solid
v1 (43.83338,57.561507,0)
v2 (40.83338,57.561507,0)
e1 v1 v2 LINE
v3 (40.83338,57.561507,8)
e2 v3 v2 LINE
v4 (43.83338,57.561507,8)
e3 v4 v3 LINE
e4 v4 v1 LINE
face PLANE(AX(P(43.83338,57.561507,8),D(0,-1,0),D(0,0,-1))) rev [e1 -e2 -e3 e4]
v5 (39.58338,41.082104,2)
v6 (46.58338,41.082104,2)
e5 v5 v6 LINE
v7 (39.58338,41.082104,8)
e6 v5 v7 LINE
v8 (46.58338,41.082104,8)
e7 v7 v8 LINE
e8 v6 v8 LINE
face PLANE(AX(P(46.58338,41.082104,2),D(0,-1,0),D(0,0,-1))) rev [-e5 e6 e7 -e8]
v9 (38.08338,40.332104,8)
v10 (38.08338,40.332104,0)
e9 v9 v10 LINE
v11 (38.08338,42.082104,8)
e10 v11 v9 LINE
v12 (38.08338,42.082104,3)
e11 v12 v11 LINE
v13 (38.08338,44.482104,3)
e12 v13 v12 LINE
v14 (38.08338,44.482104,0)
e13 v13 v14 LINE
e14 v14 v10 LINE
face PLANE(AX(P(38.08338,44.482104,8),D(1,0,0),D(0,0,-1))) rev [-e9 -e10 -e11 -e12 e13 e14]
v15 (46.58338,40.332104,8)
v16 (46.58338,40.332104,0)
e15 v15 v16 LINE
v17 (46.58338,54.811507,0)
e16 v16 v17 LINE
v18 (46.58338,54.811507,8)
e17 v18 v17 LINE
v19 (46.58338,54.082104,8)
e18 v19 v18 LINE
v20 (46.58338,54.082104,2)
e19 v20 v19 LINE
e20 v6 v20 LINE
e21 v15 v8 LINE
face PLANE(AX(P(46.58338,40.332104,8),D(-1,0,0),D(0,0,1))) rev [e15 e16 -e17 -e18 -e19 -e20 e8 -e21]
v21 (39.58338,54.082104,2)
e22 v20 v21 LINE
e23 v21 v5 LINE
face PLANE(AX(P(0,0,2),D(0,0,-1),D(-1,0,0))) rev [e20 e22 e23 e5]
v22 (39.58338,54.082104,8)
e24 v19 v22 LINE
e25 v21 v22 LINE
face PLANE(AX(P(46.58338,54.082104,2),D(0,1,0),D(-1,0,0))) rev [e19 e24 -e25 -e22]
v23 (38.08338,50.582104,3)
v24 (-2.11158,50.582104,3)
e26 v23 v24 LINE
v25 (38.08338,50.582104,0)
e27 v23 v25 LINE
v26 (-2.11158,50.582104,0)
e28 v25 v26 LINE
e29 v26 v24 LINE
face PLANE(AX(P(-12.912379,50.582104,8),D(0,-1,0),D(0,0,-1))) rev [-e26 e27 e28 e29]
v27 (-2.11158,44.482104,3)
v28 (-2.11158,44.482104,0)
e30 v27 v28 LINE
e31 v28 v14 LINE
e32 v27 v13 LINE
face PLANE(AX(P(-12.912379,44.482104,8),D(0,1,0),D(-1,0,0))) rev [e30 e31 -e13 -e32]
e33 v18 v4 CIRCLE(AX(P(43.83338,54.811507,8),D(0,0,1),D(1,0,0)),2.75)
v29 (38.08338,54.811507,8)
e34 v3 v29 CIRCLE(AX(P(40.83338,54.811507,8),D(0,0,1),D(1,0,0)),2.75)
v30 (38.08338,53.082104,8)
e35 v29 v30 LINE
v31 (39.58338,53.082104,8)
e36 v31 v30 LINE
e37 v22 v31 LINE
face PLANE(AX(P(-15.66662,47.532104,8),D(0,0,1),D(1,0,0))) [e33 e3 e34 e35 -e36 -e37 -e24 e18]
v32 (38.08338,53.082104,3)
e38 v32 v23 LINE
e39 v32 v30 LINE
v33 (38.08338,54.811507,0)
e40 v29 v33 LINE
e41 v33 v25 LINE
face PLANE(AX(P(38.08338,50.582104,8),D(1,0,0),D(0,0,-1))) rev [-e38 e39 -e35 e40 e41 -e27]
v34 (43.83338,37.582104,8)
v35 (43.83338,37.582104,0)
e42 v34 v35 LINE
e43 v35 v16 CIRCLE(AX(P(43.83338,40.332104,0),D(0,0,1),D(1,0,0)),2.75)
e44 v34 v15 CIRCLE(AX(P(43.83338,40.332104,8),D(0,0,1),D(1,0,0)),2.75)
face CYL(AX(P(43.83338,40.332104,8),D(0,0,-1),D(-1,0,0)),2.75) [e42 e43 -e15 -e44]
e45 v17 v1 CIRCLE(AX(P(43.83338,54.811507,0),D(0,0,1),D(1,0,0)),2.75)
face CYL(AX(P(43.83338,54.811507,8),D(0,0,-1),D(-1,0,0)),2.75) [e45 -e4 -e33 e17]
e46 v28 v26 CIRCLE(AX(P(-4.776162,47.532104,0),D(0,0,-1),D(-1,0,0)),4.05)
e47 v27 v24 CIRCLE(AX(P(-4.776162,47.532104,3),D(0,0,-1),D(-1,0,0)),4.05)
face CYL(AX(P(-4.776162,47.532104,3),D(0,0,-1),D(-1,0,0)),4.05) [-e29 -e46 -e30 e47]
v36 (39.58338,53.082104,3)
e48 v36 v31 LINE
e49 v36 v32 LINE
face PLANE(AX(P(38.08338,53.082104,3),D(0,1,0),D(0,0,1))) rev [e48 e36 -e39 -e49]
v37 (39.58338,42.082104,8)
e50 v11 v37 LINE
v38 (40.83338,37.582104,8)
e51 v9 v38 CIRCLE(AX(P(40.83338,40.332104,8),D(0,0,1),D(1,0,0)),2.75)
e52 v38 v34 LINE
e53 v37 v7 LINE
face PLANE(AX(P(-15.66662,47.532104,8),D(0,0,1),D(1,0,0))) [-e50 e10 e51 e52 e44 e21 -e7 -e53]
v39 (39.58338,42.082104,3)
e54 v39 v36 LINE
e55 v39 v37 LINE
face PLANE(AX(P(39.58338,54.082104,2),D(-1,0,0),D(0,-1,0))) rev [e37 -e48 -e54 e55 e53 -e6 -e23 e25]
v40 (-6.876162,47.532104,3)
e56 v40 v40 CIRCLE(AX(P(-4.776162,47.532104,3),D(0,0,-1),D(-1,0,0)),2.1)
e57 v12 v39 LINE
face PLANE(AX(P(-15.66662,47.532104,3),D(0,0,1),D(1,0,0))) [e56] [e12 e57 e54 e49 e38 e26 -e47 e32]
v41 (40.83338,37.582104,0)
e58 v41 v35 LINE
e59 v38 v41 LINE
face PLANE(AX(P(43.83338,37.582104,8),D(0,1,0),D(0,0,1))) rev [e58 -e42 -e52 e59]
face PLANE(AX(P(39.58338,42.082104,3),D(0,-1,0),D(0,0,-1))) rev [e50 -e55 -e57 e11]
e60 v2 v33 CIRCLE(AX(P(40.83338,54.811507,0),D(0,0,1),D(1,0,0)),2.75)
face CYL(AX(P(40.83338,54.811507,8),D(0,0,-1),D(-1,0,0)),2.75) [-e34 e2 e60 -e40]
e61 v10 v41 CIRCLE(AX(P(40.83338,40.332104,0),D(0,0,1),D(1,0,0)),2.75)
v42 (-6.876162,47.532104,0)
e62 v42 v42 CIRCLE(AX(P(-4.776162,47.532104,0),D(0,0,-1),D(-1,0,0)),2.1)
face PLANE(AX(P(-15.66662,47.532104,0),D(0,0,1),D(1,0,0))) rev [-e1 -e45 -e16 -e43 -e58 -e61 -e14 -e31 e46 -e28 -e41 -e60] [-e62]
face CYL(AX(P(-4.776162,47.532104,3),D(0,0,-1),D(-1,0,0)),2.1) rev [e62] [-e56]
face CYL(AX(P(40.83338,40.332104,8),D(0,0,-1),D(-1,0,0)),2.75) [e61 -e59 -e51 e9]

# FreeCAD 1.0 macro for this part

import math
import FreeCAD as App
import Part
import Sketcher


def add_polygon(sketch, points):
    """Adds a closed chain of lines whose ends are joined by coincident constraints."""
    first, n = sketch.GeometryCount, len(points)
    for a, b in zip(points, points[1:] + points[:1]):
        sketch.addGeometry(Part.LineSegment(App.Vector(*a, 0), App.Vector(*b, 0)), False)
    for i in range(n):
        sketch.addConstraint(Sketcher.Constraint("Coincident", first + i, 2, first + (i + 1) % n, 1))

doc = App.newDocument("Part")
body = doc.addObject("PartDesign::Body", "Body")

# Sketch on XY plane
sketch1 = doc.addObject("Sketcher::SketchObject", "Sketch")
body.addObject(sketch1)
sketch1.AttachmentSupport = (doc.XY_Plane, [""])
sketch1.MapMode = "FlatFace"
sketch1.addGeometry(Part.LineSegment(App.Vector(38.1, 50.6, 0), App.Vector(-12.9, 50.6, 0)), False)
sketch1.addGeometry(Part.ArcOfCircle(Part.Circle(App.Vector(-15.7, 47.5, 0), App.Vector(0, 0, 1), 4.1), math.radians(48), math.radians(312)), False)
sketch1.addGeometry(Part.LineSegment(App.Vector(-12.9, 44.5, 0), App.Vector(38.1, 44.5, 0)), False)
sketch1.addGeometry(Part.LineSegment(App.Vector(38.1, 44.5, 0), App.Vector(38.1, 40.3, 0)), False)
sketch1.addGeometry(Part.ArcOfCircle(Part.Circle(App.Vector(40.8, 40.3, 0), App.Vector(0, 0, 1), 2.7), math.radians(180), math.radians(270)), False)
sketch1.addGeometry(Part.LineSegment(App.Vector(40.8, 37.6, 0), App.Vector(43.8, 37.6, 0)), False)
sketch1.addGeometry(Part.ArcOfCircle(Part.Circle(App.Vector(43.8, 40.3, 0), App.Vector(0, 0, 1), 2.8), math.radians(-90), math.radians(0)), False)
sketch1.addGeometry(Part.LineSegment(App.Vector(46.6, 40.3, 0), App.Vector(46.6, 54.8, 0)), False)
sketch1.addGeometry(Part.ArcOfCircle(Part.Circle(App.Vector(43.8, 54.8, 0), App.Vector(0, 0, 1), 2.8), math.radians(0), math.radians(90)), False)
sketch1.addGeometry(Part.LineSegment(App.Vector(43.8, 57.6, 0), App.Vector(40.8, 57.6, 0)), False)
sketch1.addGeometry(Part.ArcOfCircle(Part.Circle(App.Vector(40.8, 54.8, 0), App.Vector(0, 0, 1), 2.7), math.radians(90), math.radians(180)), False)
sketch1.addGeometry(Part.LineSegment(App.Vector(38.1, 54.8, 0), App.Vector(38.1, 50.6, 0)), False)
sketch1.addGeometry(Part.Circle(App.Vector(-15.7, 47.5, 0), App.Vector(0, 0, 1), 2.6), False)
sketch1.addConstraint(Sketcher.Constraint("Coincident", 0, 2, 1, 1))
sketch1.addConstraint(Sketcher.Constraint("Coincident", 1, 2, 2, 1))
sketch1.addConstraint(Sketcher.Constraint("Coincident", 2, 2, 3, 1))
sketch1.addConstraint(Sketcher.Constraint("Tangent", 3, 2, 4, 1))
sketch1.addConstraint(Sketcher.Constraint("Tangent", 4, 2, 5, 1))
sketch1.addConstraint(Sketcher.Constraint("Tangent", 5, 2, 6, 1))
sketch1.addConstraint(Sketcher.Constraint("Tangent", 6, 2, 7, 1))
sketch1.addConstraint(Sketcher.Constraint("Tangent", 7, 2, 8, 1))
sketch1.addConstraint(Sketcher.Constraint("Tangent", 8, 2, 9, 1))
sketch1.addConstraint(Sketcher.Constraint("Tangent", 9, 2, 10, 1))
sketch1.addConstraint(Sketcher.Constraint("Tangent", 10, 2, 11, 1))
sketch1.addConstraint(Sketcher.Constraint("Coincident", 11, 2, 0, 1))
sketch1.addConstraint(Sketcher.Constraint("Horizontal", 0))
sketch1.addConstraint(Sketcher.Constraint("Horizontal", 2))
sketch1.addConstraint(Sketcher.Constraint("Vertical", 3))
sketch1.addConstraint(Sketcher.Constraint("Horizontal", 5))
sketch1.addConstraint(Sketcher.Constraint("Vertical", 7))
sketch1.addConstraint(Sketcher.Constraint("Horizontal", 9))
sketch1.addConstraint(Sketcher.Constraint("Vertical", 11))
sketch1.addConstraint(Sketcher.Constraint("Coincident", 12, 3, 1, 3))
sketch1.addConstraint(Sketcher.Constraint("Equal", 4, 6))
sketch1.addConstraint(Sketcher.Constraint("Equal", 6, 8))
sketch1.addConstraint(Sketcher.Constraint("Equal", 8, 10))
sketch1.addConstraint(Sketcher.Constraint("Vertical", 4, 3, 10, 3))
sketch1.addConstraint(Sketcher.Constraint("Vertical", 0, 2, 1, 2))
sketch1.addConstraint(Sketcher.Constraint("DistanceX", 5, 1, 5, 2, 3.0))
sketch1.addConstraint(Sketcher.Constraint("Radius", 4, 2.75))
sketch1.addConstraint(Sketcher.Constraint("DistanceY", 3, 2, 3, 1, 4.15))
sketch1.addConstraint(Sketcher.Constraint("DistanceX", 1, 3, 4, 3, 56.5))
sketch1.addConstraint(Sketcher.Constraint("DistanceY", 4, 3, 1, 3, 7.2))
sketch1.addConstraint(Sketcher.Constraint("Diameter", 12, 5.105177))
sketch1.addConstraint(Sketcher.Constraint("Radius", 1, 4.109543))
sketch1.addConstraint(Sketcher.Constraint("DistanceY", 7, 1, 7, 2, 14.479403))
sketch1.addConstraint(Sketcher.Constraint("DistanceX", 1, 3, -1, 1, 15.66662))
sketch1.addConstraint(Sketcher.Constraint("DistanceY", -1, 1, 1, 3, 47.532104))
pad1 = doc.addObject("PartDesign::Pad", "Pad")
body.addObject(pad1)
pad1.Profile = sketch1
pad1.Length = 8

# Sketch on XY plane
sketch2 = doc.addObject("Sketcher::SketchObject", "Sketch001")
body.addObject(sketch2)
sketch2.AttachmentSupport = (doc.XY_Plane, [""])
sketch2.MapMode = "FlatFace"
sketch2.AttachmentOffset = App.Placement(App.Vector(0, 0, 3), App.Rotation())
sketch2.addGeometry(Part.LineSegment(App.Vector(38.1, 50.6, 0), App.Vector(-12.9, 50.6, 0)), False)
sketch2.addGeometry(Part.ArcOfCircle(Part.Circle(App.Vector(-15.7, 47.5, 0), App.Vector(0, 0, 1), 4.1), math.radians(48), math.radians(312)), False)
sketch2.addGeometry(Part.LineSegment(App.Vector(-12.9, 44.5, 0), App.Vector(38.1, 44.5, 0)), False)
sketch2.addGeometry(Part.LineSegment(App.Vector(38.1, 44.5, 0), App.Vector(38.1, 42.1, 0)), False)
sketch2.addGeometry(Part.LineSegment(App.Vector(38.1, 42.1, 0), App.Vector(39.6, 42.1, 0)), False)
sketch2.addGeometry(Part.LineSegment(App.Vector(39.6, 42.1, 0), App.Vector(39.6, 53.1, 0)), False)
sketch2.addGeometry(Part.LineSegment(App.Vector(39.6, 53.1, 0), App.Vector(38.1, 53.1, 0)), False)
sketch2.addGeometry(Part.LineSegment(App.Vector(38.1, 53.1, 0), App.Vector(38.1, 50.6, 0)), False)
sketch2.addGeometry(Part.Circle(App.Vector(-15.7, 47.5, 0), App.Vector(0, 0, 1), 2.6), False)
sketch2.addConstraint(Sketcher.Constraint("Coincident", 0, 2, 1, 1))
sketch2.addConstraint(Sketcher.Constraint("Coincident", 1, 2, 2, 1))
sketch2.addConstraint(Sketcher.Constraint("Coincident", 2, 2, 3, 1))
sketch2.addConstraint(Sketcher.Constraint("Coincident", 3, 2, 4, 1))
sketch2.addConstraint(Sketcher.Constraint("Coincident", 4, 2, 5, 1))
sketch2.addConstraint(Sketcher.Constraint("Coincident", 5, 2, 6, 1))
sketch2.addConstraint(Sketcher.Constraint("Coincident", 6, 2, 7, 1))
sketch2.addConstraint(Sketcher.Constraint("Coincident", 7, 2, 0, 1))
sketch2.addConstraint(Sketcher.Constraint("Horizontal", 0))
sketch2.addConstraint(Sketcher.Constraint("Horizontal", 2))
sketch2.addConstraint(Sketcher.Constraint("Vertical", 3))
sketch2.addConstraint(Sketcher.Constraint("Horizontal", 4))
sketch2.addConstraint(Sketcher.Constraint("Vertical", 5))
sketch2.addConstraint(Sketcher.Constraint("Horizontal", 6))
sketch2.addConstraint(Sketcher.Constraint("Vertical", 7))
sketch2.addConstraint(Sketcher.Constraint("Coincident", 8, 3, 1, 3))
sketch2.addConstraint(Sketcher.Constraint("Vertical", 0, 2, 1, 2))
sketch2.addConstraint(Sketcher.Constraint("Vertical", 3, 2, 6, 2))
sketch2.addConstraint(Sketcher.Constraint("DistanceY", 5, 1, 5, 2, 11.0))
sketch2.addConstraint(Sketcher.Constraint("DistanceX", 4, 1, 4, 2, 1.5))
sketch2.addConstraint(Sketcher.Constraint("DistanceY", 3, 2, 3, 1, 2.4))
sketch2.addConstraint(Sketcher.Constraint("DistanceY", 7, 2, 7, 1, 2.5))
sketch2.addConstraint(Sketcher.Constraint("DistanceX", 1, 3, 2, 2, 53.75))
sketch2.addConstraint(Sketcher.Constraint("Diameter", 8, 5.105177))
sketch2.addConstraint(Sketcher.Constraint("Radius", 1, 4.109543))
sketch2.addConstraint(Sketcher.Constraint("DistanceX", 1, 3, -1, 1, 15.66662))
sketch2.addConstraint(Sketcher.Constraint("DistanceY", -1, 1, 1, 3, 47.532104))
pocket1 = doc.addObject("PartDesign::Pocket", "Pocket")
body.addObject(pocket1)
pocket1.Profile = sketch2
pocket1.Length = 5
pocket1.Reversed = True

# Sketch on XY plane
sketch3 = doc.addObject("Sketcher::SketchObject", "Sketch002")
body.addObject(sketch3)
sketch3.AttachmentSupport = (doc.XY_Plane, [""])
sketch3.MapMode = "FlatFace"
sketch3.AttachmentOffset = App.Placement(App.Vector(0, 0, 8), App.Rotation())
add_polygon(sketch3, [(40, 54), (40, 41), (47, 41), (47, 54)])  # lines 0-3
sketch3.addConstraint(Sketcher.Constraint("Vertical", 0))
sketch3.addConstraint(Sketcher.Constraint("Horizontal", 1))
sketch3.addConstraint(Sketcher.Constraint("Vertical", 2))
sketch3.addConstraint(Sketcher.Constraint("Horizontal", 3))
sketch3.addConstraint(Sketcher.Constraint("DistanceX", 1, 1, 1, 2, 7.0))
sketch3.addConstraint(Sketcher.Constraint("DistanceY", 0, 2, 0, 1, 13.0))
sketch3.addConstraint(Sketcher.Constraint("DistanceX", -1, 1, 0, 2, 39.58338))
sketch3.addConstraint(Sketcher.Constraint("DistanceY", -1, 1, 0, 2, 41.082104))
pocket2 = doc.addObject("PartDesign::Pocket", "Pocket001")
body.addObject(pocket2)
pocket2.Profile = sketch3
pocket2.Length = 6

# Sketch on XY plane
sketch4 = doc.addObject("Sketcher::SketchObject", "Sketch003")
body.addObject(sketch4)
sketch4.AttachmentSupport = (doc.XY_Plane, [""])
sketch4.MapMode = "FlatFace"
add_polygon(sketch4, [(-5, 53), (-5, 23), (-20, 23), (-20, 53)])  # lines 0-3
sketch4.addConstraint(Sketcher.Constraint("Vertical", 0))
sketch4.addConstraint(Sketcher.Constraint("Horizontal", 1))
sketch4.addConstraint(Sketcher.Constraint("Vertical", 2))
sketch4.addConstraint(Sketcher.Constraint("Horizontal", 3))
sketch4.addConstraint(Sketcher.Constraint("DistanceX", 1, 2, 1, 1, 15.0))
sketch4.addConstraint(Sketcher.Constraint("DistanceY", 0, 2, 0, 1, 30.0))
sketch4.addConstraint(Sketcher.Constraint("DistanceX", 0, 2, -1, 1, 4.776162))
sketch4.addConstraint(Sketcher.Constraint("DistanceY", -1, 1, 0, 2, 23.194032))
pocket3 = doc.addObject("PartDesign::Pocket", "Pocket002")
body.addObject(pocket3)
pocket3.Profile = sketch4
pocket3.Length = 10
pocket3.Reversed = True

# Sketch on XY plane
sketch5 = doc.addObject("Sketcher::SketchObject", "Sketch004")
body.addObject(sketch5)
sketch5.AttachmentSupport = (doc.XY_Plane, [""])
sketch5.MapMode = "FlatFace"
sketch5.addGeometry(Part.Circle(App.Vector(-4.8, 47.5, 0), App.Vector(0, 0, 1), 4), False)
sketch5.addConstraint(Sketcher.Constraint("Diameter", 0, 8.1))
sketch5.addConstraint(Sketcher.Constraint("DistanceX", 0, 3, -1, 1, 4.776162))
sketch5.addConstraint(Sketcher.Constraint("DistanceY", -1, 1, 0, 3, 47.532104))
pad2 = doc.addObject("PartDesign::Pad", "Pad001")
body.addObject(pad2)
pad2.Profile = sketch5
pad2.Length = 3

# Sketch on XY plane
sketch6 = doc.addObject("Sketcher::SketchObject", "Sketch005")
body.addObject(sketch6)
sketch6.AttachmentSupport = (doc.XY_Plane, [""])
sketch6.MapMode = "FlatFace"
sketch6.addGeometry(Part.Circle(App.Vector(-4.8, 47.5, 0), App.Vector(0, 0, 1), 2.1), False)
sketch6.addConstraint(Sketcher.Constraint("Diameter", 0, 4.2))
sketch6.addConstraint(Sketcher.Constraint("DistanceX", 0, 3, -1, 1, 4.776162))
sketch6.addConstraint(Sketcher.Constraint("DistanceY", -1, 1, 0, 3, 47.532104))
pocket4 = doc.addObject("PartDesign::Pocket", "Pocket003")
body.addObject(pocket4)
pocket4.Profile = sketch6
pocket4.Length = 3
pocket4.Reversed = True

doc.recompute()
